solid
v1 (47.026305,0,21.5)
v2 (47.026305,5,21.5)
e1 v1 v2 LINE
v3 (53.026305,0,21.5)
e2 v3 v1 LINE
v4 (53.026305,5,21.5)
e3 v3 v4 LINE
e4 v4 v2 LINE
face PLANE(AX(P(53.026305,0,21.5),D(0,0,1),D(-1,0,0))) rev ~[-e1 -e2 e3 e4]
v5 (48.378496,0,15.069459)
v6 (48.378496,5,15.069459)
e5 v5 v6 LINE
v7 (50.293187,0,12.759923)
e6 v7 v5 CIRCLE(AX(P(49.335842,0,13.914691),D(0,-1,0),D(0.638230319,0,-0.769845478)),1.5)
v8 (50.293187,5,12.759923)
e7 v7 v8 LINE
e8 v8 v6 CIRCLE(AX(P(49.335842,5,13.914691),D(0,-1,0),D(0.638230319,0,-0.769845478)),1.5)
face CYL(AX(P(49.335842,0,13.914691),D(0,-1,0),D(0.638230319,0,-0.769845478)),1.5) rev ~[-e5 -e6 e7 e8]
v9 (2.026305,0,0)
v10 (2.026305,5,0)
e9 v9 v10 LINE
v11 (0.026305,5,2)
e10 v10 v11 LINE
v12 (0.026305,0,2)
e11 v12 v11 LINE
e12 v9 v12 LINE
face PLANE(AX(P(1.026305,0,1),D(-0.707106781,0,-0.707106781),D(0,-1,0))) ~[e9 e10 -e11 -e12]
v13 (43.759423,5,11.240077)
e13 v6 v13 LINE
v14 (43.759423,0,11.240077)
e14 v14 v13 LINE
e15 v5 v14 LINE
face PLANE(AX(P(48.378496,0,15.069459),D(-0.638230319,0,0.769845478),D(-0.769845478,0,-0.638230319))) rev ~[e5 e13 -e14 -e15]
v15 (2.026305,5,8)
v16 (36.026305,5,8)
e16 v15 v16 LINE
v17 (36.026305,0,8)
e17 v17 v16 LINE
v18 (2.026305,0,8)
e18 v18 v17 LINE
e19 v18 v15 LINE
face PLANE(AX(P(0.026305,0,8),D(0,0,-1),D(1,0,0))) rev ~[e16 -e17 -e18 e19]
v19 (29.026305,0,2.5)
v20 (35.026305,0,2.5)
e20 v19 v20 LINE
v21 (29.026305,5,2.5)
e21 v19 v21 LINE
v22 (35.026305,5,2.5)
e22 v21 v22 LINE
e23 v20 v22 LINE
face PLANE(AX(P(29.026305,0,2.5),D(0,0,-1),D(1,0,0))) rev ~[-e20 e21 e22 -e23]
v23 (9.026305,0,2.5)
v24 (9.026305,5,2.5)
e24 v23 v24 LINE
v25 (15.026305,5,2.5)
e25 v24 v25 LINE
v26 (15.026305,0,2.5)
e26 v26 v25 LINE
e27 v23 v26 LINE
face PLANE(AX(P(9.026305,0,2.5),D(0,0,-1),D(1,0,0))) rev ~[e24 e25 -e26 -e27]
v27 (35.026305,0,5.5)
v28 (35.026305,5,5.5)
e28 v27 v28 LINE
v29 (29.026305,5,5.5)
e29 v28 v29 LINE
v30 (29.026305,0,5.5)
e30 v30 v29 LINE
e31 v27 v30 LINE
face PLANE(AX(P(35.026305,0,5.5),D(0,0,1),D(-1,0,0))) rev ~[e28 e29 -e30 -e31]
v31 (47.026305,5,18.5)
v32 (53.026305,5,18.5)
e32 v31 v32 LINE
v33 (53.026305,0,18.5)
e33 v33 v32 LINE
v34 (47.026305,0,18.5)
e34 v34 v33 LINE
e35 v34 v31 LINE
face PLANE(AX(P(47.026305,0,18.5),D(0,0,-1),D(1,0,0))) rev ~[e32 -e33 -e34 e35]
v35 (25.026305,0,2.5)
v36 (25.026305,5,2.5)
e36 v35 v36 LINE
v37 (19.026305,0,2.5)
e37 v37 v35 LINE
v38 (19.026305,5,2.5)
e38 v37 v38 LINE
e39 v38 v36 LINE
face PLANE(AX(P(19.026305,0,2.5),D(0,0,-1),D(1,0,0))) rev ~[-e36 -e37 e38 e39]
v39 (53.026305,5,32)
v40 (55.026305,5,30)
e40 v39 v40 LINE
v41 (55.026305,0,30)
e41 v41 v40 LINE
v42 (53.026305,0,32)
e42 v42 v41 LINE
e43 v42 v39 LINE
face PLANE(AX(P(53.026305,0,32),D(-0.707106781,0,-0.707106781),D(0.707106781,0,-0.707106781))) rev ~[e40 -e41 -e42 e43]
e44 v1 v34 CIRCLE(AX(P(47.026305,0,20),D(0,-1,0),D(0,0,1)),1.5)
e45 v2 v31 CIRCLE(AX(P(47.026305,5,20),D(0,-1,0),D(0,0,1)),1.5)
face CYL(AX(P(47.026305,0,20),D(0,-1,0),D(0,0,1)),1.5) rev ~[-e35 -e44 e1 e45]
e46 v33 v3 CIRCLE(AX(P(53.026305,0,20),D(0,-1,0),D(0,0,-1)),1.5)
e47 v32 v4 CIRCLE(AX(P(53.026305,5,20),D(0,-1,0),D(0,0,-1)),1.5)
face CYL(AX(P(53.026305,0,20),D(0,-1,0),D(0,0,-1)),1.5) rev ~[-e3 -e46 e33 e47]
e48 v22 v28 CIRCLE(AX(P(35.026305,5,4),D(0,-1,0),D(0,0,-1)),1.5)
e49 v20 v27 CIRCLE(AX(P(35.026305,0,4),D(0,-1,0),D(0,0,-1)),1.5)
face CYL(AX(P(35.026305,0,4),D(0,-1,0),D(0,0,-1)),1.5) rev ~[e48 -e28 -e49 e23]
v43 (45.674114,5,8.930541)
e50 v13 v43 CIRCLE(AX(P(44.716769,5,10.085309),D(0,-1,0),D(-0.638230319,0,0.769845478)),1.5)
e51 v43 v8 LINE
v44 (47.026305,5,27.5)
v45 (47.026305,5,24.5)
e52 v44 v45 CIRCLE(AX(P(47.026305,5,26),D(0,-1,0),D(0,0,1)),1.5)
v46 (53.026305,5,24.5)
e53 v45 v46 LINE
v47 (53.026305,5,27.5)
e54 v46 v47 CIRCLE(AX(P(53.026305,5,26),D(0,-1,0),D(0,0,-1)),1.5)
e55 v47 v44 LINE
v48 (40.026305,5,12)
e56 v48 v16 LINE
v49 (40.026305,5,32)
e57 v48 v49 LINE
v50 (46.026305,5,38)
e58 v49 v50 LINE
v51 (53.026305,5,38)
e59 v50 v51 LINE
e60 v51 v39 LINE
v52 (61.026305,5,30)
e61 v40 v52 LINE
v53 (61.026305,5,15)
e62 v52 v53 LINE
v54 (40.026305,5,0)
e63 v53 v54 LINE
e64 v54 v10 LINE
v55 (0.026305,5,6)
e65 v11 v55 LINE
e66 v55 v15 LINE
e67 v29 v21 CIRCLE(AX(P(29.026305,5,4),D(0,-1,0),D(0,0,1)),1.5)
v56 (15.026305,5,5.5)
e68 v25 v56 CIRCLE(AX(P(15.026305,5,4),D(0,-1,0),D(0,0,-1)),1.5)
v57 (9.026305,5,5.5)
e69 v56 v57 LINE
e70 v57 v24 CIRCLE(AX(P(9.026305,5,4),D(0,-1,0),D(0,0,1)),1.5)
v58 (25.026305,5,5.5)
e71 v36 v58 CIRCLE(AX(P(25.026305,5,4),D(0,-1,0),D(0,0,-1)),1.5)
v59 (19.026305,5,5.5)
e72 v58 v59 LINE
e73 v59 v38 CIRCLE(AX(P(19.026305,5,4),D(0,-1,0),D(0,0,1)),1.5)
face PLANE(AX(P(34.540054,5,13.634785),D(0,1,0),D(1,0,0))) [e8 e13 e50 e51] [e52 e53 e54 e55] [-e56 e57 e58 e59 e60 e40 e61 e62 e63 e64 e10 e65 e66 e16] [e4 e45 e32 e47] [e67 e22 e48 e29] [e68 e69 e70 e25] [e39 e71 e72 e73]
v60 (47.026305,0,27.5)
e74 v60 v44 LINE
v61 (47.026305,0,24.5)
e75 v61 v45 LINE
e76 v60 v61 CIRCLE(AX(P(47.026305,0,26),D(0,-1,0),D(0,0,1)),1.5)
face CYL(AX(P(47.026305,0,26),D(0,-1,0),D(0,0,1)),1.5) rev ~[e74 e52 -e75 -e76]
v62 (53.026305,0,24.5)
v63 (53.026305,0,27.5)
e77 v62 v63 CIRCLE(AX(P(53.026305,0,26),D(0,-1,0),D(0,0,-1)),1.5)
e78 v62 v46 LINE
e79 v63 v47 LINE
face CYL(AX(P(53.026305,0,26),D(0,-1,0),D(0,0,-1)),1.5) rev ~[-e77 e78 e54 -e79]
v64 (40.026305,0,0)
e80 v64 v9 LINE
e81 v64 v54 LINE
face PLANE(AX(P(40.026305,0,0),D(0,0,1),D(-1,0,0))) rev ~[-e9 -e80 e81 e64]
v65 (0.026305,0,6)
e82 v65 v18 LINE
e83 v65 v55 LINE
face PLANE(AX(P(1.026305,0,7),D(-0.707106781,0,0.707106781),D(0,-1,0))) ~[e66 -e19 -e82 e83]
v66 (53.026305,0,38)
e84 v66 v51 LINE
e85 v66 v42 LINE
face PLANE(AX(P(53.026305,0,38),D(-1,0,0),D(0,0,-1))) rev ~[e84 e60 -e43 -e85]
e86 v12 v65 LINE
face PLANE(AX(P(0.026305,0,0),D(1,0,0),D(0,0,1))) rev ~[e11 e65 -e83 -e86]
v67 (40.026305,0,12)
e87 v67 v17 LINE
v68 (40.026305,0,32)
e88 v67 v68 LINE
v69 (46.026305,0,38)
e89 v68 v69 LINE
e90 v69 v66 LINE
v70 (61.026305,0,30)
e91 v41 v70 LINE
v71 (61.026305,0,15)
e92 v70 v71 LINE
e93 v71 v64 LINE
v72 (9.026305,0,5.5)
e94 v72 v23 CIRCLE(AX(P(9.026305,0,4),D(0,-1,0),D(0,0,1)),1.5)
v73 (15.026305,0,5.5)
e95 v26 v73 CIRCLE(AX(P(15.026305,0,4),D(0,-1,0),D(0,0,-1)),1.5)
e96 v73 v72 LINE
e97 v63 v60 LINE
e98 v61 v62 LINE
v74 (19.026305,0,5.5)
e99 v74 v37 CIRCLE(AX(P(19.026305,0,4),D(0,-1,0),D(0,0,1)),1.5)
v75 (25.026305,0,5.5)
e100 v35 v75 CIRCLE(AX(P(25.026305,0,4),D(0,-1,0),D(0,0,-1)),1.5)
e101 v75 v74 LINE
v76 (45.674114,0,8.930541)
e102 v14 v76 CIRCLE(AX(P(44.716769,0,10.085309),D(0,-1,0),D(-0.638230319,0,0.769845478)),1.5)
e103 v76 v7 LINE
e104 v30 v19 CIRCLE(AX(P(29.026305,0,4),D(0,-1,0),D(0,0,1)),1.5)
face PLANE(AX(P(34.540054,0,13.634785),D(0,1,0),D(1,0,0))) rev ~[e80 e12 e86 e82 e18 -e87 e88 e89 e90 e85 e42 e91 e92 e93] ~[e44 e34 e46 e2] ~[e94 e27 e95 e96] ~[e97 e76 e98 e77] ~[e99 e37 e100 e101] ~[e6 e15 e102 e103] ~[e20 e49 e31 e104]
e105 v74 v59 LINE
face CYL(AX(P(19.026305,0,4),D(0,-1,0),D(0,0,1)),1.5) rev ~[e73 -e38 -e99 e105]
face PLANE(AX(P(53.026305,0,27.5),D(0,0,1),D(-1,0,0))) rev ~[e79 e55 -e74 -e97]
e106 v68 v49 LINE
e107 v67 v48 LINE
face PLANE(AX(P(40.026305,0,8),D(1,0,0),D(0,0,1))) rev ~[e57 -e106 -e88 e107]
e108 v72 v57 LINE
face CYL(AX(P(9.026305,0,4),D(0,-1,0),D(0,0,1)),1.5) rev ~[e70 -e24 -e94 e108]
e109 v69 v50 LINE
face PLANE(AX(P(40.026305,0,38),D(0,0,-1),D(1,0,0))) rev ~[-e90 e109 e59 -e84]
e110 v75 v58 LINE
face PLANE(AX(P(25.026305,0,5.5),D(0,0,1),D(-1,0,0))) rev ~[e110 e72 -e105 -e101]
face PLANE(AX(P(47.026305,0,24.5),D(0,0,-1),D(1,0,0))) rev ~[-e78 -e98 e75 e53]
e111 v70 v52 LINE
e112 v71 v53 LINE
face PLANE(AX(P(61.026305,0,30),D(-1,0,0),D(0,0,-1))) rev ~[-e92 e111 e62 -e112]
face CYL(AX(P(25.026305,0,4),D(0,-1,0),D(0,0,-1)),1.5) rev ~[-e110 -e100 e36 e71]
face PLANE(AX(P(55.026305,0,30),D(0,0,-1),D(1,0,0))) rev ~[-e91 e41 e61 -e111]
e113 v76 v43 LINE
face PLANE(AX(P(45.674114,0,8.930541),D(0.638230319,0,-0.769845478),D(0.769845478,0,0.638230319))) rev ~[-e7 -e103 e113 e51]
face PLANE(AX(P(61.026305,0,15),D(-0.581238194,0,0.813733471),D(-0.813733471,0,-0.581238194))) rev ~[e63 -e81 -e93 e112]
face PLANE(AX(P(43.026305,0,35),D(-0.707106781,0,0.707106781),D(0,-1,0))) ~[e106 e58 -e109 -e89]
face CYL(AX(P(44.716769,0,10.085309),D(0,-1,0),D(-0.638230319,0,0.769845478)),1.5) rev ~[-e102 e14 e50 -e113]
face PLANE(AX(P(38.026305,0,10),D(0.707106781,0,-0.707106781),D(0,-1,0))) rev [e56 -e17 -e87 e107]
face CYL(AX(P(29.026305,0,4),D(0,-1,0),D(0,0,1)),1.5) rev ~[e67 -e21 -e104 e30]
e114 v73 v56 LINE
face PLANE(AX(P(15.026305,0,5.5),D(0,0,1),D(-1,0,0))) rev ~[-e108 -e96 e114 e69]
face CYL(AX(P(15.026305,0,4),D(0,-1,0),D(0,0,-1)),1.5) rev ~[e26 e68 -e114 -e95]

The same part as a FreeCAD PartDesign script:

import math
import FreeCAD as App
import Part
import Sketcher

V = App.Vector
Q = App.Units.Quantity


def edges_at(feature, points):
    """Names of the edges that pass closest to the given points."""
    edges = feature.Shape.Edges
    near = lambda p: min(range(len(edges)), key=lambda i: edges[i].distToShape(Part.Vertex(*p))[0])
    return sorted({f"Edge{near(p) + 1}" for p in points})


def add_polygon(sketch, points):
    """Adds a closed chain of lines whose ends are joined by coincident constraints."""
    first, n = sketch.GeometryCount, len(points)
    for a, b in zip(points, points[1:] + points[:1]):
        sketch.addGeometry(Part.LineSegment(App.Vector(*a, 0), App.Vector(*b, 0)), False)
    for i in range(n):
        sketch.addConstraint(Sketcher.Constraint("Coincident", first + i, 2, first + (i + 1) % n, 1))

doc = App.newDocument("Part")
body = doc.addObject("PartDesign::Body", "Body")

sketch1 = doc.addObject("Sketcher::SketchObject", "Sketch")
body.addObject(sketch1)
sketch1.AttachmentSupport = (doc.XZ_Plane, [""])
sketch1.MapMode = "FlatFace"
add_polygon(sketch1, [(40, 0), (0, 0), (0, 8), (40, 8), (40, 38), (53, 38), (53, 32), (55, 30), (61, 30), (61, 15)])
sketch1.addGeometry(Part.LineSegment(V(53, 27.5, 0), V(47, 27.5, 0)), False)
sketch1.addGeometry(Part.ArcOfCircle(Part.Circle(V(47, 26, 0), V(0, 0, 1), 1.5), math.radians(90), math.radians(270)), False)
sketch1.addGeometry(Part.LineSegment(V(47, 24.5, 0), V(53, 24.5, 0)), False)
sketch1.addGeometry(Part.ArcOfCircle(Part.Circle(V(53, 26, 0), V(0, 0, 1), 1.5), math.radians(-90), math.radians(90)), False)
sketch1.addGeometry(Part.LineSegment(V(53, 21.5, 0), V(47, 21.5, 0)), False)
sketch1.addGeometry(Part.ArcOfCircle(Part.Circle(V(47, 20, 0), V(0, 0, 1), 1.5), math.radians(90), math.radians(270)), False)
sketch1.addGeometry(Part.LineSegment(V(47, 18.5, 0), V(53, 18.5, 0)), False)
sketch1.addGeometry(Part.ArcOfCircle(Part.Circle(V(53, 20, 0), V(0, 0, 1), 1.5), math.radians(-90), math.radians(90)), False)
sketch1.addGeometry(Part.LineSegment(V(15, 5.5, 0), V(9, 5.5, 0)), False)
sketch1.addGeometry(Part.ArcOfCircle(Part.Circle(V(9, 4, 0), V(0, 0, 1), 1.5), math.radians(90), math.radians(270)), False)
sketch1.addGeometry(Part.LineSegment(V(9, 2.5, 0), V(15, 2.5, 0)), False)
sketch1.addGeometry(Part.ArcOfCircle(Part.Circle(V(15, 4, 0), V(0, 0, 1), 1.5), math.radians(-90), math.radians(90)), False)
sketch1.addGeometry(Part.LineSegment(V(25, 5.5, 0), V(19, 5.5, 0)), False)
sketch1.addGeometry(Part.ArcOfCircle(Part.Circle(V(19, 4, 0), V(0, 0, 1), 1.5), math.radians(90), math.radians(270)), False)
sketch1.addGeometry(Part.LineSegment(V(19, 2.5, 0), V(25, 2.5, 0)), False)
sketch1.addGeometry(Part.ArcOfCircle(Part.Circle(V(25, 4, 0), V(0, 0, 1), 1.5), math.radians(-90), math.radians(90)), False)
sketch1.addGeometry(Part.LineSegment(V(48.4, 15.1, 0), V(43.8, 11.2, 0)), False)
sketch1.addGeometry(Part.ArcOfCircle(Part.Circle(V(44.7, 10.1, 0), V(0, 0, 1), 1.5), math.radians(130), math.radians(310)), False)
sketch1.addGeometry(Part.LineSegment(V(45.7, 8.9, 0), V(50.3, 12.8, 0)), False)
sketch1.addGeometry(Part.ArcOfCircle(Part.Circle(V(49.3, 13.9, 0), V(0, 0, 1), 1.5), math.radians(-50), math.radians(130)), False)
sketch1.addGeometry(Part.LineSegment(V(35, 5.5, 0), V(29, 5.5, 0)), False)
sketch1.addGeometry(Part.ArcOfCircle(Part.Circle(V(29, 4, 0), V(0, 0, 1), 1.5), math.radians(90), math.radians(270)), False)
sketch1.addGeometry(Part.LineSegment(V(29, 2.5, 0), V(35, 2.5, 0)), False)
sketch1.addGeometry(Part.ArcOfCircle(Part.Circle(V(35, 4, 0), V(0, 0, 1), 1.5), math.radians(-90), math.radians(90)), False)
sketch1.addConstraint([
    Sketcher.Constraint("Tangent", 10, 2, 11, 1),
    Sketcher.Constraint("Tangent", 11, 2, 12, 1),
    Sketcher.Constraint("Tangent", 12, 2, 13, 1),
    Sketcher.Constraint("Tangent", 13, 2, 10, 1),
    Sketcher.Constraint("Tangent", 14, 2, 15, 1),
    Sketcher.Constraint("Tangent", 15, 2, 16, 1),
    Sketcher.Constraint("Tangent", 16, 2, 17, 1),
    Sketcher.Constraint("Tangent", 17, 2, 14, 1),
    Sketcher.Constraint("Tangent", 18, 2, 19, 1),
    Sketcher.Constraint("Tangent", 19, 2, 20, 1),
    Sketcher.Constraint("Tangent", 20, 2, 21, 1),
    Sketcher.Constraint("Tangent", 21, 2, 18, 1),
    Sketcher.Constraint("Tangent", 22, 2, 23, 1),
    Sketcher.Constraint("Tangent", 23, 2, 24, 1),
    Sketcher.Constraint("Tangent", 24, 2, 25, 1),
    Sketcher.Constraint("Tangent", 25, 2, 22, 1),
    Sketcher.Constraint("Tangent", 26, 2, 27, 1),
    Sketcher.Constraint("Tangent", 27, 2, 28, 1),
    Sketcher.Constraint("Tangent", 28, 2, 29, 1),
    Sketcher.Constraint("Tangent", 29, 2, 26, 1),
    Sketcher.Constraint("Tangent", 30, 2, 31, 1),
    Sketcher.Constraint("Tangent", 31, 2, 32, 1),
    Sketcher.Constraint("Tangent", 32, 2, 33, 1),
    Sketcher.Constraint("Tangent", 33, 2, 30, 1),
    Sketcher.Constraint("Horizontal", 0),
    Sketcher.Constraint("Vertical", 1),
    Sketcher.Constraint("Horizontal", 2),
    Sketcher.Constraint("Vertical", 3),
    Sketcher.Constraint("Horizontal", 4),
    Sketcher.Constraint("Vertical", 5),
    Sketcher.Constraint("Horizontal", 7),
    Sketcher.Constraint("Vertical", 8),
    Sketcher.Constraint("Horizontal", 10),
    Sketcher.Constraint("Horizontal", 12),
    Sketcher.Constraint("Horizontal", 14),
    Sketcher.Constraint("Horizontal", 16),
    Sketcher.Constraint("Horizontal", 18),
    Sketcher.Constraint("Horizontal", 20),
    Sketcher.Constraint("Horizontal", 22),
    Sketcher.Constraint("Horizontal", 24),
    Sketcher.Constraint("Horizontal", 30),
    Sketcher.Constraint("Horizontal", 32),
    Sketcher.Constraint("Equal", 13, 15),
    Sketcher.Constraint("Equal", 17, 19),
    Sketcher.Constraint("Equal", 21, 23),
    Sketcher.Constraint("Equal", 25, 27),
    Sketcher.Constraint("Equal", 27, 29),
    Sketcher.Constraint("Equal", 29, 31),
    Sketcher.Constraint("PointOnObject", 0, 2, -1),
    Sketcher.Constraint("Horizontal", 21, 3, 23, 3),
    Sketcher.Constraint("Horizontal", 25, 3, 31, 3),
    Sketcher.Constraint("Vertical", 11, 3, 15, 3),
    Sketcher.Constraint("Vertical", 13, 3, 17, 3),
    Sketcher.Constraint("Vertical", 17, 3, 4, 2),
    Sketcher.Constraint("Vertical", 3, 2, 9, 2),
    Sketcher.Constraint("Equal", 7, 10),
    Sketcher.Constraint("Equal", 16, 18),
    Sketcher.Constraint("Equal", 20, 22),
    Sketcher.Constraint("Equal", 24, 30),
    Sketcher.Constraint("Equal", 32, 5),
    Sketcher.Constraint("Radius", 11, Q("1.5 mm")),
    Sketcher.Constraint("DistanceX", 0, 2, 0, 1, Q("40 mm")),
    Sketcher.Constraint("DistanceX", 4, 1, 4, 2, Q("13 mm")),
    Sketcher.Constraint("DistanceX", 7, 1, 7, 2, Q("6 mm")),
    Sketcher.Constraint("DistanceY", 1, 1, 1, 2, Q("8 mm")),
    Sketcher.Constraint("DistanceY", 3, 1, 3, 2, Q("30 mm")),
    Sketcher.Constraint("DistanceY", 8, 2, 8, 1, Q("15 mm")),
    Sketcher.Constraint("Angle", 6, Q("-45 deg")),
    Sketcher.Constraint("Distance", 26, Q("6 mm")),
    Sketcher.Constraint("DistanceY", -1, 1, 11, 3, Q("26 mm")),
    Sketcher.Constraint("DistanceY", -1, 1, 15, 3, Q("20 mm")),
    Sketcher.Constraint("DistanceY", -1, 1, 19, 3, Q("4 mm")),
    Sketcher.Constraint("DistanceY", -1, 1, 6, 2, Q("30 mm")),
    Sketcher.Constraint("DistanceX", 19, 3, 15, 3, Q("38 mm")),
    Sketcher.Constraint("DistanceX", 21, 3, 23, 3, Q("4 mm")),
    Sketcher.Constraint("DistanceX", 25, 3, 31, 3, Q("4 mm")),
    Sketcher.Constraint("Angle", 26, Q("-140.340015 deg")),
    Sketcher.Constraint("DistanceX", -1, 1, 27, 3, Q("44.716769 mm")),
    Sketcher.Constraint("DistanceY", -1, 1, 27, 3, Q("10.085309 mm")),
    Sketcher.Constraint("DistanceX", 2, 2, 26, 2, Q("3.733118 mm")),
])
pad1 = doc.addObject("PartDesign::Pad", "Pad")
body.addObject(pad1)
pad1.Profile = sketch1
pad1.Length = 5
pad1.Reversed = True
doc.recompute()

chamfer = doc.addObject("PartDesign::Chamfer", "Chamfer")
body.addObject(chamfer)
chamfer.Base = (pad1, edges_at(pad1, [(0.026, 2.5, 8), (0.026, 2.5, 0)]))
chamfer.Size = 2
doc.recompute()

chamfer2 = doc.addObject("PartDesign::Chamfer", "Chamfer001")
body.addObject(chamfer2)
chamfer2.Base = (chamfer, edges_at(chamfer, [(40.026, 2.5, 38)]))
chamfer2.Size = 6
doc.recompute()

chamfer3 = doc.addObject("PartDesign::Chamfer", "Chamfer002")
body.addObject(chamfer3)
chamfer3.Base = (chamfer2, edges_at(chamfer2, [(40.026, 2.5, 8)]))
chamfer3.Size = 4

doc.recompute()
